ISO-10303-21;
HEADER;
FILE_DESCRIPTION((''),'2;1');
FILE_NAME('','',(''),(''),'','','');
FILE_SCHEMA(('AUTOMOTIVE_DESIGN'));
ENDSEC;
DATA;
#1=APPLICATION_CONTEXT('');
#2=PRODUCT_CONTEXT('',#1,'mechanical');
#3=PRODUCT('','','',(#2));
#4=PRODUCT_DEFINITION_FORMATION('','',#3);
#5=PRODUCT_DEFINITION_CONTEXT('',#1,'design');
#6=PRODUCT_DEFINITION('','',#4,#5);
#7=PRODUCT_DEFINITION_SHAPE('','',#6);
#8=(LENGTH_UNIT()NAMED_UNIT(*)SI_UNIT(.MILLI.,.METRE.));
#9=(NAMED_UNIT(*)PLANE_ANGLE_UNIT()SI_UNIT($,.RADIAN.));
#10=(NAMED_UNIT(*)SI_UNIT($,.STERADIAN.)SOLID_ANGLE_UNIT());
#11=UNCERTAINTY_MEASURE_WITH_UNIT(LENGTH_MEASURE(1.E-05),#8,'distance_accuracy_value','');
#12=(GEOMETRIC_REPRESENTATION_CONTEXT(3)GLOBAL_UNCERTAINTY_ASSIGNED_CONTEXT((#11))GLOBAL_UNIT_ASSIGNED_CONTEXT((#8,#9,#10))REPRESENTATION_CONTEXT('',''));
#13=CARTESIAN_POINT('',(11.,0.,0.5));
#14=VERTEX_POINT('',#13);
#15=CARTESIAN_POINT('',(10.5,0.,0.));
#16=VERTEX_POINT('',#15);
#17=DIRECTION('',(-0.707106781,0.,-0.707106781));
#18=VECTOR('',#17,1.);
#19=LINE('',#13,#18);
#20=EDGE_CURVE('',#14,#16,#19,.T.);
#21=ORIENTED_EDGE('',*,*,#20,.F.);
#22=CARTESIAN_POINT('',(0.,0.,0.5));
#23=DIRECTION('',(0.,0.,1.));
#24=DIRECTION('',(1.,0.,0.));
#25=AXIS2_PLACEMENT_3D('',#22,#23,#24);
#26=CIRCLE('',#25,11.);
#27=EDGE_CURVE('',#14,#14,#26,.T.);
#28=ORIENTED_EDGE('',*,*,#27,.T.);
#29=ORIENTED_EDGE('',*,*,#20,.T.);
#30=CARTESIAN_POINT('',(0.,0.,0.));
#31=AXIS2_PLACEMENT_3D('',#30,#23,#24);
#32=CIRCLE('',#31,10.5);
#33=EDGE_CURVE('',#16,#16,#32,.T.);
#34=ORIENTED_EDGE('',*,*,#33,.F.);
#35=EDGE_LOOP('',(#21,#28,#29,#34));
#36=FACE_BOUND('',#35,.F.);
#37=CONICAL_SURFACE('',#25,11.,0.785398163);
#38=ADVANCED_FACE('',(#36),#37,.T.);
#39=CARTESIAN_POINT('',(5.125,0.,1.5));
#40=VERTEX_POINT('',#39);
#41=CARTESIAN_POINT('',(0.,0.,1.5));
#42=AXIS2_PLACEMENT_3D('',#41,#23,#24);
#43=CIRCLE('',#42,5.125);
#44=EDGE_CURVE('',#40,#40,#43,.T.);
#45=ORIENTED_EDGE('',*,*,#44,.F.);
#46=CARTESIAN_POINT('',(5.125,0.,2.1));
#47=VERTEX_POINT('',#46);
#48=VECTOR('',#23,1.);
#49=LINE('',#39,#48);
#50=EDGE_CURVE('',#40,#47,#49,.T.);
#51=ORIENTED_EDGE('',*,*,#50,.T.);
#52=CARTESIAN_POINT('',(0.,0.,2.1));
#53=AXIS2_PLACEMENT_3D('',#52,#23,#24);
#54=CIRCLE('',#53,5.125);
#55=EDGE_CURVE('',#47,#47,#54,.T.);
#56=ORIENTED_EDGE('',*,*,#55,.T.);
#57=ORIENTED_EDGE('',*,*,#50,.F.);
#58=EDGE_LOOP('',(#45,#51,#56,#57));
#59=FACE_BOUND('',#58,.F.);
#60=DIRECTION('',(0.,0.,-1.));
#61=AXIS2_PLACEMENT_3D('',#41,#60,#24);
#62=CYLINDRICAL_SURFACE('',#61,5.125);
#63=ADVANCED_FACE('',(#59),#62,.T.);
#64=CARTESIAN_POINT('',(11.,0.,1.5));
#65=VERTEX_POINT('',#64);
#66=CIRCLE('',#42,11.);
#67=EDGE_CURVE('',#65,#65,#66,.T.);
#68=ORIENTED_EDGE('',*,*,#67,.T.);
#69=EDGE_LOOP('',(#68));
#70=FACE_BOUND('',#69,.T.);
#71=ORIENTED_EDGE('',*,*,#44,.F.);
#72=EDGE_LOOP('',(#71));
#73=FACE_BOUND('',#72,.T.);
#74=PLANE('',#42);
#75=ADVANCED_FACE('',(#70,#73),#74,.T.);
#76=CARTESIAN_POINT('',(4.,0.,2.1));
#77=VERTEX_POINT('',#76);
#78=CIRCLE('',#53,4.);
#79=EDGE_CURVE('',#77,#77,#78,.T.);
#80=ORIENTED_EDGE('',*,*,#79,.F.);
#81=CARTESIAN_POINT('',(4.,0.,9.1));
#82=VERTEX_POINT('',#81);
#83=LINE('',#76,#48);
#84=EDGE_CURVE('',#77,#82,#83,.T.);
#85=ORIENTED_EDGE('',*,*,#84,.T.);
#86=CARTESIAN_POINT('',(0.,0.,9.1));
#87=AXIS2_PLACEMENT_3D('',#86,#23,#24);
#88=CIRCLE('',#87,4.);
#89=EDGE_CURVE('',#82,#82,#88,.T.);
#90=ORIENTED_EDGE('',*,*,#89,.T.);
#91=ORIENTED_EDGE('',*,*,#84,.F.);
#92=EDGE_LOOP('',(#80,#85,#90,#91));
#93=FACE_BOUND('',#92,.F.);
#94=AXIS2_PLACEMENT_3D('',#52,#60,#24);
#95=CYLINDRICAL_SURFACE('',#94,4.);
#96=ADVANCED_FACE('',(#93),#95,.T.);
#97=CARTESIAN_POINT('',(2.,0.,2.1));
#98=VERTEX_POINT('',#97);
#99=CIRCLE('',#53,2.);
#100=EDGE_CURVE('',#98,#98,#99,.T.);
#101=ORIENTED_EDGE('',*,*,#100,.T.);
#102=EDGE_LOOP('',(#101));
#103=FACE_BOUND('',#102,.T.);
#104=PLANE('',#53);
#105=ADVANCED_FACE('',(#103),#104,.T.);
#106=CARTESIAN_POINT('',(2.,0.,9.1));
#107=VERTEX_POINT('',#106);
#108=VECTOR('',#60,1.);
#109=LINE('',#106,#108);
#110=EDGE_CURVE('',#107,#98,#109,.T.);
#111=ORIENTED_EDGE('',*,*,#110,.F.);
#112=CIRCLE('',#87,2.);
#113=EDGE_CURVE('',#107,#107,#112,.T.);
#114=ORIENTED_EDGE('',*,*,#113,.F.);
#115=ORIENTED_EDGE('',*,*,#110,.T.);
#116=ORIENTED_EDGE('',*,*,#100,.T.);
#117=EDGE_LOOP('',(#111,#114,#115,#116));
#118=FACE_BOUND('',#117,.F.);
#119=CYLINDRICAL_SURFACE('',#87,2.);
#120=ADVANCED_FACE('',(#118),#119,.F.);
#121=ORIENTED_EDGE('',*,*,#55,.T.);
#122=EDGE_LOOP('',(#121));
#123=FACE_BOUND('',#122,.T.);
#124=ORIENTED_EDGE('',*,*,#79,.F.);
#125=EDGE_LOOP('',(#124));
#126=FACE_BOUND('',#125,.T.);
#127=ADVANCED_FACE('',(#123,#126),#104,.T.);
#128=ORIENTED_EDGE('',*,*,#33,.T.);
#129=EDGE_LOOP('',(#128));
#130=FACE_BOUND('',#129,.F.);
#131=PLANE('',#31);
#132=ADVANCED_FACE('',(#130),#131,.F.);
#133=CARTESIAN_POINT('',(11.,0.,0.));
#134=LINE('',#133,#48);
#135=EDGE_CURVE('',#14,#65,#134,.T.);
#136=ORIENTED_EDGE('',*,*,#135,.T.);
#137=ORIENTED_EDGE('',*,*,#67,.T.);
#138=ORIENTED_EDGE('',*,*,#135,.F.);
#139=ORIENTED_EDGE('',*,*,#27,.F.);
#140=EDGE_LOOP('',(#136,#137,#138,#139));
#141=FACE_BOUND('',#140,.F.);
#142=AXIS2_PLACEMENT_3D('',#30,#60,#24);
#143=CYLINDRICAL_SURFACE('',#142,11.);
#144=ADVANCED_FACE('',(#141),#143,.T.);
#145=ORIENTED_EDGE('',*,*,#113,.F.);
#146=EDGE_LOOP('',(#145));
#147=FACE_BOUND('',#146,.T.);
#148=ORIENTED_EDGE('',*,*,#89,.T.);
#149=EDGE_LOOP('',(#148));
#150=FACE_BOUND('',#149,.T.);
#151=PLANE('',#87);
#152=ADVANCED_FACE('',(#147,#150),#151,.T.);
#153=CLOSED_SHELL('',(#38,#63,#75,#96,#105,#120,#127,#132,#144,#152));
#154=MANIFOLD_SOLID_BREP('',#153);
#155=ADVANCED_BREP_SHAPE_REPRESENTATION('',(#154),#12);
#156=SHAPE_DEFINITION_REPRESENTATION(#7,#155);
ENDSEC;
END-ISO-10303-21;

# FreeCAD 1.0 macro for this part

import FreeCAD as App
import Part
import Sketcher
Q = App.Units.Quantity


def edges_at(feature, points):
    """Names of the edges that pass closest to the given points."""
    edges = feature.Shape.Edges
    near = lambda p: min(range(len(edges)), key=lambda i: edges[i].distToShape(Part.Vertex(*p))[0])
    return sorted({f"Edge{near(p) + 1}" for p in points})

doc = App.newDocument("Part")
params = doc.addObject("Spreadsheet::Sheet", "Params")
for row, (alias, value) in enumerate([
    ("sketch1_diameter", "22 mm"),
    ("pad1_length", "1.5 mm"),
    ("sketch2_diameter", "10.25 mm"),
    ("pad2_length", "0.6 mm"),
    ("sketch3_diameter", "8 mm"),
    ("pad3_length", "7 mm"),
    ("sketch4_diameter", "4 mm"),
    ("pocket1_length", "7 mm"),
    ("chamfer_size", "0.5 mm"),
], start=1):
    params.set(f"A{row}", alias)
    params.set(f"B{row}", "=" + value)
    params.setAlias(f"B{row}", alias)

body = doc.addObject("PartDesign::Body", "Body")

# Sketch on XY plane
sketch1 = body.newObject("Sketcher::SketchObject", "Sketch")
sketch1.AttachmentSupport = (doc.getObject("XY_Plane"), [""])
sketch1.MapMode = "FlatFace"
sketch1.addGeometry(Part.Circle(App.Vector(0, 0, 0), App.Vector(0, 0, 1), 11), False)
sketch1.addConstraint(Sketcher.Constraint("Coincident", 0, 3, -1, 1))
sketch1.addConstraint(Sketcher.Constraint("Diameter", 0, Q("22 mm")))
sketch1.setExpression("Constraints[1]", "Params.sketch1_diameter")
pad1 = body.newObject("PartDesign::Pad", "Pad")
pad1.Profile = sketch1
pad1.setExpression("Length", "Params.pad1_length")

# Sketch on XY plane
sketch2 = body.newObject("Sketcher::SketchObject", "Sketch001")
sketch2.AttachmentSupport = (doc.getObject("XY_Plane"), [""])
sketch2.MapMode = "FlatFace"
sketch2.AttachmentOffset = App.Placement(App.Vector(0, 0, 1.5), App.Rotation())
sketch2.addGeometry(Part.Circle(App.Vector(0, 0, 0), App.Vector(0, 0, 1), 5.125), False)
sketch2.addConstraint(Sketcher.Constraint("Coincident", 0, 3, -1, 1))
sketch2.addConstraint(Sketcher.Constraint("Diameter", 0, Q("10.25 mm")))
sketch2.setExpression("Constraints[1]", "Params.sketch2_diameter")
pad2 = body.newObject("PartDesign::Pad", "Pad001")
pad2.Profile = sketch2
pad2.setExpression("Length", "Params.pad2_length")

# Sketch on XY plane
sketch3 = body.newObject("Sketcher::SketchObject", "Sketch002")
sketch3.AttachmentSupport = (doc.getObject("XY_Plane"), [""])
sketch3.MapMode = "FlatFace"
sketch3.AttachmentOffset = App.Placement(App.Vector(0, 0, 2.1), App.Rotation())
sketch3.addGeometry(Part.Circle(App.Vector(0, 0, 0), App.Vector(0, 0, 1), 4), False)
sketch3.addConstraint(Sketcher.Constraint("Coincident", 0, 3, -1, 1))
sketch3.addConstraint(Sketcher.Constraint("Diameter", 0, Q("8 mm")))
sketch3.setExpression("Constraints[1]", "Params.sketch3_diameter")
pad3 = body.newObject("PartDesign::Pad", "Pad002")
pad3.Profile = sketch3
pad3.setExpression("Length", "Params.pad3_length")

# Sketch on XY plane
sketch4 = body.newObject("Sketcher::SketchObject", "Sketch003")
sketch4.AttachmentSupport = (doc.getObject("XY_Plane"), [""])
sketch4.MapMode = "FlatFace"
sketch4.AttachmentOffset = App.Placement(App.Vector(0, 0, 9.1), App.Rotation())
sketch4.addGeometry(Part.Circle(App.Vector(0, 0, 0), App.Vector(0, 0, 1), 2), False)
sketch4.addConstraint(Sketcher.Constraint("Coincident", 0, 3, -1, 1))
sketch4.addConstraint(Sketcher.Constraint("Diameter", 0, Q("4 mm")))
sketch4.setExpression("Constraints[1]", "Params.sketch4_diameter")
pocket1 = body.newObject("PartDesign::Pocket", "Pocket")
pocket1.Profile = sketch4
pocket1.setExpression("Length", "Params.pocket1_length")
doc.recompute()

chamfer = body.newObject("PartDesign::Chamfer", "Chamfer")
chamfer.Base = (pocket1, edges_at(pocket1, [(-11, 0, 0)]))
chamfer.setExpression("Size", "Params.chamfer_size")

doc.recompute()
